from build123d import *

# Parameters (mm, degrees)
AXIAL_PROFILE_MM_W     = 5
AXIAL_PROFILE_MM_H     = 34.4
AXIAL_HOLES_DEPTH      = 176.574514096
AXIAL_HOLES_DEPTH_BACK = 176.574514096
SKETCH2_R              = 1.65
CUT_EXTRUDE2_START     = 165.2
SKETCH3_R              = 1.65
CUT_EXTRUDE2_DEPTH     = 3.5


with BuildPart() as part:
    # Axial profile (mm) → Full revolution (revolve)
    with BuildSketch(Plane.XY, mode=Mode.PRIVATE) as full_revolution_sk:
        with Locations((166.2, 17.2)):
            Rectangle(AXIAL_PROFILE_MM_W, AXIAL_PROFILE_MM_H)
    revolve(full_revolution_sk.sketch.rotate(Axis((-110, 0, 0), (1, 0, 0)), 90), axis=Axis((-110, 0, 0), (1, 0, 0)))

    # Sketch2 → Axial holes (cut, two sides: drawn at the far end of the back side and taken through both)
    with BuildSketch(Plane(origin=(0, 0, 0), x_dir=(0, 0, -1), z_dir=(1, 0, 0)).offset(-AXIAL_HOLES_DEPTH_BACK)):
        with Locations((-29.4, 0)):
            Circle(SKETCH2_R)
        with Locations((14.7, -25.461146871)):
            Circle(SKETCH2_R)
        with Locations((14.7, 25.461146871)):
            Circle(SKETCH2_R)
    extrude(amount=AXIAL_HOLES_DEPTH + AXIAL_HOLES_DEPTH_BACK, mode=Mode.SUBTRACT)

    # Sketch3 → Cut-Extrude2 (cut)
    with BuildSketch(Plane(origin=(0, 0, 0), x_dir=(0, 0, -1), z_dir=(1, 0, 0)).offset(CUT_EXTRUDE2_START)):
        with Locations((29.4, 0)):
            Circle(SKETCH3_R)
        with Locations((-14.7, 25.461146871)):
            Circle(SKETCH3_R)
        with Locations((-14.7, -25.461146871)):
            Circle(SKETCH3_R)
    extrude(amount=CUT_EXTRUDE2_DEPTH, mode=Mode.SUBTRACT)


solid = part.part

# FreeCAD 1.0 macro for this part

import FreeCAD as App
import Part
import Sketcher
from FreeCAD import Vector
Q = App.Units.Quantity

doc = App.newDocument("Part")
body = doc.addObject("PartDesign::Body", "Body")

sketch1 = body.newObject("Sketcher::SketchObject", "Sketch")
sketch1.AttachmentSupport = (doc.getObject("XY_Plane"), [""])
sketch1.MapMode = "FlatFace"
sketch1.addGeometry([
    Part.LineSegment(Vector(164, 34, 0), Vector(164, 0, 0)),
    Part.LineSegment(Vector(164, 0, 0), Vector(169, 0, 0)),
    Part.LineSegment(Vector(169, 0, 0), Vector(169, 34, 0)),
    Part.LineSegment(Vector(169, 34, 0), Vector(164, 34, 0)),
], False)
sketch1.addConstraint([
    Sketcher.Constraint("Coincident", 0, 2, 1, 1),
    Sketcher.Constraint("Coincident", 1, 2, 2, 1),
    Sketcher.Constraint("Coincident", 2, 2, 3, 1),
    Sketcher.Constraint("Coincident", 3, 2, 0, 1),
    Sketcher.Constraint("Vertical", 0),
    Sketcher.Constraint("Horizontal", 1),
    Sketcher.Constraint("Vertical", 2),
    Sketcher.Constraint("Horizontal", 3),
    Sketcher.Constraint("PointOnObject", 0, 2, -1),
    Sketcher.Constraint("DistanceX", 1, 1, 1, 2, Q("5 mm")),
    Sketcher.Constraint("DistanceY", 0, 2, 0, 1, Q("34.4 mm")),
    Sketcher.Constraint("DistanceX", -1, 1, 0, 2, Q("163.7 mm")),
])
revolution = body.newObject("PartDesign::Revolution", "Revolution")
revolution.Profile = sketch1
revolution.ReferenceAxis = (sketch1, ["H_Axis"])
revolution.Angle = 360

sketch2 = body.newObject("Sketcher::SketchObject", "Sketch001")
sketch2.AttachmentSupport = (doc.getObject("YZ_Plane"), [""])
sketch2.MapMode = "FlatFace"
sketch2.addGeometry([
    Part.Circle(Vector(0, 29.4, 0), Vector(0, 0, 1), 1.6),
    Part.Circle(Vector(-25.5, -14.7, 0), Vector(0, 0, 1), 1.6),
    Part.Circle(Vector(25.5, -14.7, 0), Vector(0, 0, 1), 1.6),
], False)
sketch2.addConstraint([
    Sketcher.Constraint("Equal", 0, 1),
    Sketcher.Constraint("Equal", 1, 2),
    Sketcher.Constraint("Symmetric", 1, 3, 2, 3, -2),
    Sketcher.Constraint("PointOnObject", 0, 3, -2),
    Sketcher.Constraint("Diameter", 0, Q("3.3 mm")),
    Sketcher.Constraint("DistanceY", -1, 1, 0, 3, Q("29.4 mm")),
    Sketcher.Constraint("DistanceY", 1, 3, -1, 1, Q("14.7 mm")),
    Sketcher.Constraint("DistanceX", 1, 3, -1, 1, Q("25.461147 mm")),
])
pocket1 = body.newObject("PartDesign::Pocket", "Pocket")
pocket1.Profile = sketch2
pocket1.Type = "ThroughAll"
pocket1.Midplane = True

sketch3 = body.newObject("Sketcher::SketchObject", "Sketch002")
sketch3.AttachmentSupport = (doc.getObject("YZ_Plane"), [""])
sketch3.MapMode = "FlatFace"
sketch3.AttachmentOffset = App.Placement(Vector(0, 0, 165.2), App.Rotation())
sketch3.addGeometry([
    Part.Circle(Vector(0, -29.4, 0), Vector(0, 0, 1), 1.6),
    Part.Circle(Vector(25.5, 14.7, 0), Vector(0, 0, 1), 1.6),
    Part.Circle(Vector(-25.5, 14.7, 0), Vector(0, 0, 1), 1.6),
], False)
sketch3.addConstraint([
    Sketcher.Constraint("Equal", 0, 1),
    Sketcher.Constraint("Equal", 1, 2),
    Sketcher.Constraint("Symmetric", 1, 3, 2, 3, -2),
    Sketcher.Constraint("PointOnObject", 0, 3, -2),
    Sketcher.Constraint("Diameter", 0, Q("3.3 mm")),
    Sketcher.Constraint("DistanceY", 0, 3, -1, 1, Q("29.4 mm")),
    Sketcher.Constraint("DistanceY", -1, 1, 1, 3, Q("14.7 mm")),
    Sketcher.Constraint("DistanceX", -1, 1, 1, 3, Q("25.461147 mm")),
])
pocket2 = body.newObject("PartDesign::Pocket", "Pocket001")
pocket2.Profile = sketch3
pocket2.Length = 3.5
pocket2.Reversed = True

doc.recompute()
